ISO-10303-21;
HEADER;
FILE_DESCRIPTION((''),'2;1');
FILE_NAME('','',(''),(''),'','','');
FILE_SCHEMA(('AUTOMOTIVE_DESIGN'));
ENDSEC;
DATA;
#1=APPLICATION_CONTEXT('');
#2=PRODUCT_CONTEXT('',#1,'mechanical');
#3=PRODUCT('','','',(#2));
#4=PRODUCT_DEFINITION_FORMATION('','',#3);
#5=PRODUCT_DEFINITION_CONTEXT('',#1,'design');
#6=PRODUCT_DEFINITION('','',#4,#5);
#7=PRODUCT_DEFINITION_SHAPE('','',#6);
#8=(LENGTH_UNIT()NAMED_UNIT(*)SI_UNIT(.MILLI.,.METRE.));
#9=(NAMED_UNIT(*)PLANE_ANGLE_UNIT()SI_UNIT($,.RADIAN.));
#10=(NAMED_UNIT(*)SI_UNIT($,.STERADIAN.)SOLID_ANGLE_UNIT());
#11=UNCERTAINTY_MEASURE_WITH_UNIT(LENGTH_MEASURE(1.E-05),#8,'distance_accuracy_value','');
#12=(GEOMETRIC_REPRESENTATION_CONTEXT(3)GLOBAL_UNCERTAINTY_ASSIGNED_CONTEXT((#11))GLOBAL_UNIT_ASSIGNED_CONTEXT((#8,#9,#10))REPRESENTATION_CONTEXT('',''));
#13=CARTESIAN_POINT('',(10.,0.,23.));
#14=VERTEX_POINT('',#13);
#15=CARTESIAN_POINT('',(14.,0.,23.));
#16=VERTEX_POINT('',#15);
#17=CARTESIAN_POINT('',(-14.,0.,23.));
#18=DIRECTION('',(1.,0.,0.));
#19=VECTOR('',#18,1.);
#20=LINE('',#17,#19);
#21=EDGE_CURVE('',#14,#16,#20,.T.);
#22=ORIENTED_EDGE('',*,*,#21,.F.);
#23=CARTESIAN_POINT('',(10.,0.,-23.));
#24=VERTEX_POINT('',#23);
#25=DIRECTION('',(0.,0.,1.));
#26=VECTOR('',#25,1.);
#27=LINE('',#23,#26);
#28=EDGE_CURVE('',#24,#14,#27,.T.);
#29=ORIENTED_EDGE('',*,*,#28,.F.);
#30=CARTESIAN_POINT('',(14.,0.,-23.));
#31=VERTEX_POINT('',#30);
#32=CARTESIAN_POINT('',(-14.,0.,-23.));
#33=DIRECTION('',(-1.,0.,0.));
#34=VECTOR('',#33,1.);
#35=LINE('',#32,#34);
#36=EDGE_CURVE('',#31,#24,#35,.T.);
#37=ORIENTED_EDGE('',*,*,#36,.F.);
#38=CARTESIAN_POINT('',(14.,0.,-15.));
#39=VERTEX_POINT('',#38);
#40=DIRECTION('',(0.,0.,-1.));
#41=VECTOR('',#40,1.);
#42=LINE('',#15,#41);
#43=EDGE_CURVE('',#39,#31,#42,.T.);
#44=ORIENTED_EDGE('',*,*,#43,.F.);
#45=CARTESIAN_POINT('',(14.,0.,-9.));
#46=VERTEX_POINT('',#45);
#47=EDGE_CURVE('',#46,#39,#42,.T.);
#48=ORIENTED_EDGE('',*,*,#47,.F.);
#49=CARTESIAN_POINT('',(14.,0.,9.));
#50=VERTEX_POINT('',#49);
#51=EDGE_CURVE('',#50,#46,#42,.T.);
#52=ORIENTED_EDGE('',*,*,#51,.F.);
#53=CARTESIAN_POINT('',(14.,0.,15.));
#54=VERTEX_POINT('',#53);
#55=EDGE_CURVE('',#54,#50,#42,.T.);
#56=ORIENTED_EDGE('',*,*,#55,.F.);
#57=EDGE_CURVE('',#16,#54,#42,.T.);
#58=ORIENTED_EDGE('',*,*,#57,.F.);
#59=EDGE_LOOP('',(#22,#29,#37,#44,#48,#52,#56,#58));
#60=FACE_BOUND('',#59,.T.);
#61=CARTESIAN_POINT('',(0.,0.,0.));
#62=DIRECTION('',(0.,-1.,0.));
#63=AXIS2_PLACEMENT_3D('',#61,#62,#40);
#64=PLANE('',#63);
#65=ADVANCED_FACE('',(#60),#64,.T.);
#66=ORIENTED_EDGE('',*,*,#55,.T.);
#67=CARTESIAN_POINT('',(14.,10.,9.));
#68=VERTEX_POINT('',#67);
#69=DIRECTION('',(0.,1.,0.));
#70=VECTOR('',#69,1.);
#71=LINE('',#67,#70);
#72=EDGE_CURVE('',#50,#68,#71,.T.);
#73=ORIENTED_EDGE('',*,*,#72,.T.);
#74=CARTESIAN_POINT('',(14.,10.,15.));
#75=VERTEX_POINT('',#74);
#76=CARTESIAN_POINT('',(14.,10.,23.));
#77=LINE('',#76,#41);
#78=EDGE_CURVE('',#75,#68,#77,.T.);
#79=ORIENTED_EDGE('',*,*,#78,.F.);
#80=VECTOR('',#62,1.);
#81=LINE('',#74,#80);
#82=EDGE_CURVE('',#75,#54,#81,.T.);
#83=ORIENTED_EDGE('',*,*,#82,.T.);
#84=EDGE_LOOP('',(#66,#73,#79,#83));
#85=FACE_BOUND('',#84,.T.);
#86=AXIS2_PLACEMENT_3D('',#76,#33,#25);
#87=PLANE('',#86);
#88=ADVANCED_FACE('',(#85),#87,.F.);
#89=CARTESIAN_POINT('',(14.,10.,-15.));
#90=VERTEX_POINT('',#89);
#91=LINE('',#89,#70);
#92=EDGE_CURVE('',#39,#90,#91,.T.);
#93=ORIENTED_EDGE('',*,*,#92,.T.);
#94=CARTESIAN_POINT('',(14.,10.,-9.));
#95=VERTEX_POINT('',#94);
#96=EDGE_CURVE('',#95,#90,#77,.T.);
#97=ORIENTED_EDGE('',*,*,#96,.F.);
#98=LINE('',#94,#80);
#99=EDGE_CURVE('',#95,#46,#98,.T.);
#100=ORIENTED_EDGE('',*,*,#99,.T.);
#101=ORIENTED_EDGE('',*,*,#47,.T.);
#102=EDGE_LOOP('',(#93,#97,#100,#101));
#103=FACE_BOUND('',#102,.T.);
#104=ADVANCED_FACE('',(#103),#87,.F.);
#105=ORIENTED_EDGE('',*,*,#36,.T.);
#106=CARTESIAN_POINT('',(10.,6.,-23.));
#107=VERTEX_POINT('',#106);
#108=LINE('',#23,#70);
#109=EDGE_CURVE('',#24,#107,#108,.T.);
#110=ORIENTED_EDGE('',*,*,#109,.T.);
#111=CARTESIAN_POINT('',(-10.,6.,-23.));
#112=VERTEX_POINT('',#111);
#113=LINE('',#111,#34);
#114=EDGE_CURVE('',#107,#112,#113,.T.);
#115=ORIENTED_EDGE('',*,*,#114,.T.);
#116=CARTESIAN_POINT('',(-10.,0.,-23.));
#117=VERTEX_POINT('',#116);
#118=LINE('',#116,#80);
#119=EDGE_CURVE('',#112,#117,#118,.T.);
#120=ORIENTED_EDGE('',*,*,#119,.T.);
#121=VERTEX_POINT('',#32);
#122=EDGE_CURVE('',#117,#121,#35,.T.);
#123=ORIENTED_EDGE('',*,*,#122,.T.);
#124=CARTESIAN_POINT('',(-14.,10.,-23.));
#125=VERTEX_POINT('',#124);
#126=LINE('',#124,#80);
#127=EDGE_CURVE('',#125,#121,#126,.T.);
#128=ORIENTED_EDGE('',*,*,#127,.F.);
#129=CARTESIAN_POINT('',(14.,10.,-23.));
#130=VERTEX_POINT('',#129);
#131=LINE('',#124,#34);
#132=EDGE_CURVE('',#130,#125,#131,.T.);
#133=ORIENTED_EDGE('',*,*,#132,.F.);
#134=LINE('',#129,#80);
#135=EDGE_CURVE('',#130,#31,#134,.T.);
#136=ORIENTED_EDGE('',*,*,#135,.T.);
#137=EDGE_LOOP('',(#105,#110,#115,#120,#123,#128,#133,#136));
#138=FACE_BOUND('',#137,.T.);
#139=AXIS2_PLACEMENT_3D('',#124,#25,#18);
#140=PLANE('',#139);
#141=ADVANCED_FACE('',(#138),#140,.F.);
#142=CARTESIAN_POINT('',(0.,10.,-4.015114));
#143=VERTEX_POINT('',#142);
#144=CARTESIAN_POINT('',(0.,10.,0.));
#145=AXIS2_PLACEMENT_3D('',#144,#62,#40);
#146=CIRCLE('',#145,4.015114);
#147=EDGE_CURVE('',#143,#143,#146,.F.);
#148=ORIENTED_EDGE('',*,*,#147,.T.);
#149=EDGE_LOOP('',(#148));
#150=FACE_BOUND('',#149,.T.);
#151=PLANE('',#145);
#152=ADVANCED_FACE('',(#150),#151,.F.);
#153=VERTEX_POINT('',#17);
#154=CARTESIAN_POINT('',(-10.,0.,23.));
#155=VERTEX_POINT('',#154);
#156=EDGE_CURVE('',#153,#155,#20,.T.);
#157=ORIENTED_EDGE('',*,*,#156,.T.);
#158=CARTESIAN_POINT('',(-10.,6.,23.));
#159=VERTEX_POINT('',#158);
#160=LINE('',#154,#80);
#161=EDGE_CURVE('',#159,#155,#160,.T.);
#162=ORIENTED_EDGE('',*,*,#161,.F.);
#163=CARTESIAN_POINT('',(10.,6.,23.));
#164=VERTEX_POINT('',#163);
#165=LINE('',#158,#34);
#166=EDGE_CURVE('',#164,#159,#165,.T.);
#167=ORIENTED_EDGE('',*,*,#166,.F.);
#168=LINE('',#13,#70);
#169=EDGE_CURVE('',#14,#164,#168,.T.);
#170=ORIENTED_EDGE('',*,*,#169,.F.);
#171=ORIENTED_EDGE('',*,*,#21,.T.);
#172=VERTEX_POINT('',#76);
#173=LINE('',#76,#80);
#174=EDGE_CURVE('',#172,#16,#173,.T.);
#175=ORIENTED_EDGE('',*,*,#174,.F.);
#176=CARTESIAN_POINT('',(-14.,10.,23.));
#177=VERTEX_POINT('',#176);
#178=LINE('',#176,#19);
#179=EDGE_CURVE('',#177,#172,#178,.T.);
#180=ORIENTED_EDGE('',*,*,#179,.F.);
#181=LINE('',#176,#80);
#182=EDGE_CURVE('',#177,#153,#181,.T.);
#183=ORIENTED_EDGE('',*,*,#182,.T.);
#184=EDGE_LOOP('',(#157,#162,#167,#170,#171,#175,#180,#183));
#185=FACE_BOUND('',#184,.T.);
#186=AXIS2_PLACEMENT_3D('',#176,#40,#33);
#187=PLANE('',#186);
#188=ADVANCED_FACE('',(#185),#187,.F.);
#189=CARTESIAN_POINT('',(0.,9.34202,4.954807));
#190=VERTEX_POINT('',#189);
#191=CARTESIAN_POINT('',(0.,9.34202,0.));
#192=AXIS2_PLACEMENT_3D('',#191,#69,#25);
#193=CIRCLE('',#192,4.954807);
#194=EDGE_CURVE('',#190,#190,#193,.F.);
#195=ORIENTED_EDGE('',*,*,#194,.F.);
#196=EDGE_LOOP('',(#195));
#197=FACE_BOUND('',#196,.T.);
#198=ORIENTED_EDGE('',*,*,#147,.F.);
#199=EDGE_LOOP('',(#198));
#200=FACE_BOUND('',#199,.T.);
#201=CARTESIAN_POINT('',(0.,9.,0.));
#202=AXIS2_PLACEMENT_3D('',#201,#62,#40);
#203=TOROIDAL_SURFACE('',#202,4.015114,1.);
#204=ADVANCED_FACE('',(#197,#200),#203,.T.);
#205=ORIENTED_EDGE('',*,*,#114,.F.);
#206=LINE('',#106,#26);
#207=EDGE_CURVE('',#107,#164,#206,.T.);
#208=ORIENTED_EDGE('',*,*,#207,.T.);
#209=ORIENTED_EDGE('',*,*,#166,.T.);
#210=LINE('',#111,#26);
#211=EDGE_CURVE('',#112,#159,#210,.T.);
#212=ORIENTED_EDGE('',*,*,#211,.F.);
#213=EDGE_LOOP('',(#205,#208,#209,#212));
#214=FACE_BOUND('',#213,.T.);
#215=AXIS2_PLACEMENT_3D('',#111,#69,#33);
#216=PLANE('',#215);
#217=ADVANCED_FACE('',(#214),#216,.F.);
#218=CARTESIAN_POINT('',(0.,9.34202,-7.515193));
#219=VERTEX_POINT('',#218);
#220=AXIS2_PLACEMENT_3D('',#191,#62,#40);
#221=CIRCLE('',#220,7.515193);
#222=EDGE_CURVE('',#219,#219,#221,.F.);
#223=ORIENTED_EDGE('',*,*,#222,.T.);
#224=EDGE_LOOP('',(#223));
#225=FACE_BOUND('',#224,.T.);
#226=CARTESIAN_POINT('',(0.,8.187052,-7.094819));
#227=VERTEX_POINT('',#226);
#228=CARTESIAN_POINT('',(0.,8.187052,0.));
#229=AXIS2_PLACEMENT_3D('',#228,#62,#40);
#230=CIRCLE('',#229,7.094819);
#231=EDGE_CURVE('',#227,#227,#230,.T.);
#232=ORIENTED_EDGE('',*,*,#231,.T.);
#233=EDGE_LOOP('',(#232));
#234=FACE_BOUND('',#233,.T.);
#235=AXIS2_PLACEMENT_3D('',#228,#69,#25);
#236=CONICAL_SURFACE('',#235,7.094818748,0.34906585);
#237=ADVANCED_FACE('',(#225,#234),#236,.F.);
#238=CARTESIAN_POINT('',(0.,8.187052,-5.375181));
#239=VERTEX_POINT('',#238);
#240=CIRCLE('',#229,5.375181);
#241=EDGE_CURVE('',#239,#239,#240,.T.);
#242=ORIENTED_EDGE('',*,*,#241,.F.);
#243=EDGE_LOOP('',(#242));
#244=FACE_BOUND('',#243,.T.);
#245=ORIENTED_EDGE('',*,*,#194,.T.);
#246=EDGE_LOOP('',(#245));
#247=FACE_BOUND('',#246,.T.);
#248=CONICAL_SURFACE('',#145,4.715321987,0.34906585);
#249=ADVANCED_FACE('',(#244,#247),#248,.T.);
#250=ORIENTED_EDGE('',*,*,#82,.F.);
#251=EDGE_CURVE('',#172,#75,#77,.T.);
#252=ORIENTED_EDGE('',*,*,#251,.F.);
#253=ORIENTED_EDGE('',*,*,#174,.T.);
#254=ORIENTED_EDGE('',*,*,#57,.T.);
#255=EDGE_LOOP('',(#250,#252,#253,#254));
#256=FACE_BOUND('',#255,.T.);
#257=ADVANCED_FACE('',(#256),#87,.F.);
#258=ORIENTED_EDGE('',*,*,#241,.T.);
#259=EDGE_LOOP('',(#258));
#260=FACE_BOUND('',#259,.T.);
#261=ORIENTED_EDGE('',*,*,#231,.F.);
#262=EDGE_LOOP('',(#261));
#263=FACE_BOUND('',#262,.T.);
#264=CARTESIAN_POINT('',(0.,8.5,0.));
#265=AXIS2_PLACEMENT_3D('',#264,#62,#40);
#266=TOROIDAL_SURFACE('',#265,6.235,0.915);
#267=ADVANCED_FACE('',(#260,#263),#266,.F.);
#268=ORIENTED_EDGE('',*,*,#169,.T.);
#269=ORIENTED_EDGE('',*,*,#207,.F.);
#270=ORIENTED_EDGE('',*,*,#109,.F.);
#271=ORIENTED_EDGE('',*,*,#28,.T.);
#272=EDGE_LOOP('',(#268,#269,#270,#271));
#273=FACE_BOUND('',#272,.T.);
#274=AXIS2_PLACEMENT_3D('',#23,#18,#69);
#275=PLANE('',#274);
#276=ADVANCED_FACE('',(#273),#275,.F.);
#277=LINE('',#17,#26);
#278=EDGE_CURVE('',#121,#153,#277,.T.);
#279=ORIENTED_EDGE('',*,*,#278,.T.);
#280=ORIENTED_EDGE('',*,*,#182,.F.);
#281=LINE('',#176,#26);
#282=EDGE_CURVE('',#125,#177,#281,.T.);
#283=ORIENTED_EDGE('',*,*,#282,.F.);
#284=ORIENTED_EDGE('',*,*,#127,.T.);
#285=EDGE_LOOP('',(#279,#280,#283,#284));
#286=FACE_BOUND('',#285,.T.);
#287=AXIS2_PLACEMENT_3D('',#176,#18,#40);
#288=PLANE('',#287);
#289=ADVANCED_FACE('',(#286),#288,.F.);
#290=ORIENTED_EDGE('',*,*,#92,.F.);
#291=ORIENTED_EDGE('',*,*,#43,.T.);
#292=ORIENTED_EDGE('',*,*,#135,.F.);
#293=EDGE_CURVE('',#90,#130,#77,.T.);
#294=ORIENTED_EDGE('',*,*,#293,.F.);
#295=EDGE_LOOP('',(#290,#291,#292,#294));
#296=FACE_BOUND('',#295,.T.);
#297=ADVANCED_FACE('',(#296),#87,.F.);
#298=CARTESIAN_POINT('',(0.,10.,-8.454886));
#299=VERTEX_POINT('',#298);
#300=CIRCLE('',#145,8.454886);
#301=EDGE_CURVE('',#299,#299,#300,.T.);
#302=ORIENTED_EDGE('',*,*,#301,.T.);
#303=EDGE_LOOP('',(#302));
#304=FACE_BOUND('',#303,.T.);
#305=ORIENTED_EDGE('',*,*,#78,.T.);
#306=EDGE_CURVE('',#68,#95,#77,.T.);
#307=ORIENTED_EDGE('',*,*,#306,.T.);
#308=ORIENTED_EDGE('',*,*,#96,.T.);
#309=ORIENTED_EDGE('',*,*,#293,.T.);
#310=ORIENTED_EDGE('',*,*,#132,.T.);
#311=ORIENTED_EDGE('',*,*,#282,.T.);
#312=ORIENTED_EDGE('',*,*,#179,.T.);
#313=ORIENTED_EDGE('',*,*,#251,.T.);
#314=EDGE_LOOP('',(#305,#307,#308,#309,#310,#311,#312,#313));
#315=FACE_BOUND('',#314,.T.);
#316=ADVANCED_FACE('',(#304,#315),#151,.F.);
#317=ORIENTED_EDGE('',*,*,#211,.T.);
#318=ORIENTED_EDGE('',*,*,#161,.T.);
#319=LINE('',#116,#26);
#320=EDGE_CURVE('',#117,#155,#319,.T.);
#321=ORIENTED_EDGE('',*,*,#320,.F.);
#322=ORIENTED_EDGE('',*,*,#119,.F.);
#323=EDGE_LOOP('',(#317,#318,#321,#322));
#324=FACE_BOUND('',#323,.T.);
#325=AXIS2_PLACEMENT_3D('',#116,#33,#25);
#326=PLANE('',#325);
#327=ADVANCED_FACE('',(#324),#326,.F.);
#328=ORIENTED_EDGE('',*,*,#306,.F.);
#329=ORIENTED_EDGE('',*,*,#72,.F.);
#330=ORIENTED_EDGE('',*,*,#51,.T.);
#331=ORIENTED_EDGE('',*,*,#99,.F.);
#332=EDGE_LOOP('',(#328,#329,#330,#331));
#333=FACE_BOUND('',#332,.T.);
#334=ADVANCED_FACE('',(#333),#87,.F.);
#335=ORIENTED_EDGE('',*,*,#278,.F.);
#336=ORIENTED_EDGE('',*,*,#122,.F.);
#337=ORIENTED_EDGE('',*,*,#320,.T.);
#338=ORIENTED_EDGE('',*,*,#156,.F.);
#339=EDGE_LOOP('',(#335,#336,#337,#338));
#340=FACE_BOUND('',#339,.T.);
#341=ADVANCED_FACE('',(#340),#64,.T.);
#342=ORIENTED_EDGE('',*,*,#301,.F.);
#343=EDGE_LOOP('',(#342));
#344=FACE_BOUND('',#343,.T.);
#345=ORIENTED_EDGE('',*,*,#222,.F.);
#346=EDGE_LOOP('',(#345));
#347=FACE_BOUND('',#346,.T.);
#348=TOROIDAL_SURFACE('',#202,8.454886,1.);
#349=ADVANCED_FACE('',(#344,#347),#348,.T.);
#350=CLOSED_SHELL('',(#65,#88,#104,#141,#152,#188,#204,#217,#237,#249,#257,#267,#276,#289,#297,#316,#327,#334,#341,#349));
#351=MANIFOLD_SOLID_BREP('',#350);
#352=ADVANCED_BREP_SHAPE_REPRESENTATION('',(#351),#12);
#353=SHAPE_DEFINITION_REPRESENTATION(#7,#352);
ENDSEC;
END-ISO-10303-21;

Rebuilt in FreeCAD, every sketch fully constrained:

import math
import FreeCAD as App
import Part
import Sketcher

V = App.Vector
Q = App.Units.Quantity


def edges_at(feature, points):
    """Names of the edges that pass closest to the given points."""
    edges = feature.Shape.Edges
    near = lambda p: min(range(len(edges)), key=lambda i: edges[i].distToShape(Part.Vertex(*p))[0])
    return sorted({f"Edge{near(p) + 1}" for p in points})

doc = App.newDocument("Part")
body = doc.addObject("PartDesign::Body", "Body")

sketch1 = doc.addObject("Sketcher::SketchObject", "Sketch")
body.addObject(sketch1)
sketch1.AttachmentSupport = (doc.XZ_Plane, [""])
sketch1.MapMode = "FlatFace"
sketch1.addGeometry([
    Part.LineSegment(V(-14, -23, 0), V(-14, 23, 0)),
    Part.LineSegment(V(-14, 23, 0), V(14, 23, 0)),
    Part.LineSegment(V(14, 23, 0), V(14, -23, 0)),
    Part.LineSegment(V(14, -23, 0), V(-14, -23, 0)),
], False)
sketch1.addConstraint([
    Sketcher.Constraint("Coincident", 0, 2, 1, 1),
    Sketcher.Constraint("Coincident", 1, 2, 2, 1),
    Sketcher.Constraint("Coincident", 2, 2, 3, 1),
    Sketcher.Constraint("Coincident", 3, 2, 0, 1),
    Sketcher.Constraint("Vertical", 0),
    Sketcher.Constraint("Horizontal", 1),
    Sketcher.Constraint("Vertical", 2),
    Sketcher.Constraint("Horizontal", 3),
    Sketcher.Constraint("Symmetric", 0, 2, 2, 2, -1, 1),
    Sketcher.Constraint("DistanceX", 1, 1, 1, 2, Q("28 mm")),
    Sketcher.Constraint("DistanceY", 0, 1, 0, 2, Q("46 mm")),
])
pad1 = doc.addObject("PartDesign::Pad", "Pad")
body.addObject(pad1)
pad1.Profile = sketch1
pad1.Length = 10
pad1.Reversed = True

sketch2 = doc.addObject("Sketcher::SketchObject", "Sketch001")
body.addObject(sketch2)
sketch2.AttachmentSupport = (doc.XY_Plane, [""])
sketch2.MapMode = "FlatFace"
sketch2.AttachmentOffset = App.Placement(V(0, 0, 23), App.Rotation())
sketch2.addGeometry([
    Part.LineSegment(V(-10, 6, 0), V(-10, 0, 0)),
    Part.LineSegment(V(-10, 0, 0), V(10, 0, 0)),
    Part.LineSegment(V(10, 0, 0), V(10, 6, 0)),
    Part.LineSegment(V(10, 6, 0), V(-10, 6, 0)),
], False)
sketch2.addConstraint([
    Sketcher.Constraint("Coincident", 0, 2, 1, 1),
    Sketcher.Constraint("Coincident", 1, 2, 2, 1),
    Sketcher.Constraint("Coincident", 2, 2, 3, 1),
    Sketcher.Constraint("Coincident", 3, 2, 0, 1),
    Sketcher.Constraint("Vertical", 0),
    Sketcher.Constraint("Horizontal", 1),
    Sketcher.Constraint("Vertical", 2),
    Sketcher.Constraint("Horizontal", 3),
    Sketcher.Constraint("Symmetric", 0, 2, 1, 2, -1, 1),
    Sketcher.Constraint("DistanceX", 1, 1, 1, 2, Q("20 mm")),
    Sketcher.Constraint("DistanceY", 0, 2, 0, 1, Q("6 mm")),
])
pocket1 = doc.addObject("PartDesign::Pocket", "Pocket")
body.addObject(pocket1)
pocket1.Profile = sketch2
pocket1.Type = "ThroughAll"

sketch3 = doc.addObject("Sketcher::SketchObject", "Sketch002")
body.addObject(sketch3)
sketch3.AttachmentSupport = (doc.XY_Plane, [""])
sketch3.MapMode = "FlatFace"
sketch3.addGeometry([
    Part.LineSegment(V(4.7, 10, 0), V(5.4, 8.2, 0)),
    Part.ArcOfCircle(Part.Circle(V(6.2, 8.5, 0), V(0, 0, 1), 0.9), math.radians(-160), math.radians(-20)),
    Part.LineSegment(V(7.1, 8.2, 0), V(7.8, 10, 0)),
    Part.LineSegment(V(7.8, 10, 0), V(4.7, 10, 0)),
], False)
sketch3.addConstraint([
    Sketcher.Constraint("Tangent", 0, 2, 1, 1),
    Sketcher.Constraint("Tangent", 1, 2, 2, 1),
    Sketcher.Constraint("Coincident", 2, 2, 3, 1),
    Sketcher.Constraint("Coincident", 3, 2, 0, 1),
    Sketcher.Constraint("Horizontal", 3),
    Sketcher.Constraint("Horizontal", 0, 2, 1, 2),
    Sketcher.Constraint("Angle", 0, Q("-70 deg")),
    Sketcher.Constraint("DistanceY", -1, 1, 2, 2, Q("10 mm")),
    Sketcher.Constraint("Radius", 1, Q("0.915 mm")),
    Sketcher.Constraint("DistanceY", -1, 1, 1, 3, Q("8.5 mm")),
    Sketcher.Constraint("DistanceX", -1, 1, 1, 3, Q("6.235 mm")),
])
groove = doc.addObject("PartDesign::Groove", "Groove")
body.addObject(groove)
groove.Profile = sketch3
groove.ReferenceAxis = (sketch3, ["V_Axis"])
groove.Angle = 360
doc.recompute()

fillet = doc.addObject("PartDesign::Fillet", "Fillet")
body.addObject(fillet)
fillet.Base = (groove, edges_at(groove, [(0, 10, 7.755), (0, 10, 4.715)]))
fillet.Radius = 1

doc.recompute()
